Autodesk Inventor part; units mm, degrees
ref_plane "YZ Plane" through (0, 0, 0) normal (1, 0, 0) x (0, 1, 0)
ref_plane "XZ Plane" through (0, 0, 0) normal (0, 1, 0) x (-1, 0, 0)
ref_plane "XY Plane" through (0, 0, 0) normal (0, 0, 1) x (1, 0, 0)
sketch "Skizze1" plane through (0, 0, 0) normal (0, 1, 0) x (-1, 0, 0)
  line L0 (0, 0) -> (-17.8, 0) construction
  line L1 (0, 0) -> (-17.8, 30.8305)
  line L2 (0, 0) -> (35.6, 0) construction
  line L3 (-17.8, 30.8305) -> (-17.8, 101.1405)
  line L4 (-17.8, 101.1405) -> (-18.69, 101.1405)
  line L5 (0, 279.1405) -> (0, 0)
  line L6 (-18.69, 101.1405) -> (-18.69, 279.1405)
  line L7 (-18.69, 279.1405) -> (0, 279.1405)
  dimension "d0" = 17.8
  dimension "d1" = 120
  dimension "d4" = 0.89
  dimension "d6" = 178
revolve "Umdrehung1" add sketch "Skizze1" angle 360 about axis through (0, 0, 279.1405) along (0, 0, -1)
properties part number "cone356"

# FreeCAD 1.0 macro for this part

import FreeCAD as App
import Part
import Sketcher

V = App.Vector
Q = App.Units.Quantity


def add_polygon(sketch, points):
    """Adds a closed chain of lines whose ends are joined by coincident constraints."""
    first, n = sketch.GeometryCount, len(points)
    for a, b in zip(points, points[1:] + points[:1]):
        sketch.addGeometry(Part.LineSegment(App.Vector(*a, 0), App.Vector(*b, 0)), False)
    for i in range(n):
        sketch.addConstraint(Sketcher.Constraint("Coincident", first + i, 2, first + (i + 1) % n, 1))

doc = App.newDocument("Part")
params = doc.addObject("Spreadsheet::Sheet", "Params")
for row, (alias, value) in enumerate([
    ("sketch1_height", "178 mm"),
    ("sketch1_width", "0.89 mm"),
    ("sketch1_height2", "70.31 mm"),
    ("revolution_angle", "360 deg"),
], start=1):
    params.set(f"A{row}", alias)
    params.set(f"B{row}", "=" + value)
    params.setAlias(f"B{row}", alias)

body = doc.addObject("PartDesign::Body", "Body")

sketch1 = body.newObject("Sketcher::SketchObject", "Sketch")
sketch1.AttachmentSupport = (doc.getObject("XZ_Plane"), [""])
sketch1.MapMode = "FlatFace"
add_polygon(sketch1, [(17.8, 30.8), (0, 0), (0, 279.1), (18.7, 279.1), (18.7, 101.1), (17.8, 101.1)])
sketch1.addConstraint(Sketcher.Constraint("Vertical", 1))
sketch1.addConstraint(Sketcher.Constraint("Horizontal", 2))
sketch1.addConstraint(Sketcher.Constraint("Vertical", 3))
sketch1.addConstraint(Sketcher.Constraint("Horizontal", 4))
sketch1.addConstraint(Sketcher.Constraint("Vertical", 5))
sketch1.addConstraint(Sketcher.Constraint("Coincident", 0, 2, -1, 1))
sketch1.addConstraint(Sketcher.Constraint("DistanceY", 3, 2, 3, 1, 178.0))
sketch1.addConstraint(Sketcher.Constraint("Angle", 0, Q("-120 deg")))
sketch1.addConstraint(Sketcher.Constraint("DistanceX", 4, 2, 4, 1, 0.89))
sketch1.addConstraint(Sketcher.Constraint("DistanceX", -1, 1, 4, 2, 17.8))
sketch1.addConstraint(Sketcher.Constraint("DistanceY", 5, 2, 5, 1, 70.31))
sketch1.setExpression("Constraints[12]", "Params.sketch1_height")
sketch1.setExpression("Constraints[14]", "Params.sketch1_width")
sketch1.setExpression("Constraints[16]", "Params.sketch1_height2")
revolution = body.newObject("PartDesign::Revolution", "Revolution")
revolution.Profile = sketch1
revolution.ReferenceAxis = (sketch1, ["V_Axis"])
revolution.setExpression("Angle", "Params.revolution_angle")

doc.recompute()
